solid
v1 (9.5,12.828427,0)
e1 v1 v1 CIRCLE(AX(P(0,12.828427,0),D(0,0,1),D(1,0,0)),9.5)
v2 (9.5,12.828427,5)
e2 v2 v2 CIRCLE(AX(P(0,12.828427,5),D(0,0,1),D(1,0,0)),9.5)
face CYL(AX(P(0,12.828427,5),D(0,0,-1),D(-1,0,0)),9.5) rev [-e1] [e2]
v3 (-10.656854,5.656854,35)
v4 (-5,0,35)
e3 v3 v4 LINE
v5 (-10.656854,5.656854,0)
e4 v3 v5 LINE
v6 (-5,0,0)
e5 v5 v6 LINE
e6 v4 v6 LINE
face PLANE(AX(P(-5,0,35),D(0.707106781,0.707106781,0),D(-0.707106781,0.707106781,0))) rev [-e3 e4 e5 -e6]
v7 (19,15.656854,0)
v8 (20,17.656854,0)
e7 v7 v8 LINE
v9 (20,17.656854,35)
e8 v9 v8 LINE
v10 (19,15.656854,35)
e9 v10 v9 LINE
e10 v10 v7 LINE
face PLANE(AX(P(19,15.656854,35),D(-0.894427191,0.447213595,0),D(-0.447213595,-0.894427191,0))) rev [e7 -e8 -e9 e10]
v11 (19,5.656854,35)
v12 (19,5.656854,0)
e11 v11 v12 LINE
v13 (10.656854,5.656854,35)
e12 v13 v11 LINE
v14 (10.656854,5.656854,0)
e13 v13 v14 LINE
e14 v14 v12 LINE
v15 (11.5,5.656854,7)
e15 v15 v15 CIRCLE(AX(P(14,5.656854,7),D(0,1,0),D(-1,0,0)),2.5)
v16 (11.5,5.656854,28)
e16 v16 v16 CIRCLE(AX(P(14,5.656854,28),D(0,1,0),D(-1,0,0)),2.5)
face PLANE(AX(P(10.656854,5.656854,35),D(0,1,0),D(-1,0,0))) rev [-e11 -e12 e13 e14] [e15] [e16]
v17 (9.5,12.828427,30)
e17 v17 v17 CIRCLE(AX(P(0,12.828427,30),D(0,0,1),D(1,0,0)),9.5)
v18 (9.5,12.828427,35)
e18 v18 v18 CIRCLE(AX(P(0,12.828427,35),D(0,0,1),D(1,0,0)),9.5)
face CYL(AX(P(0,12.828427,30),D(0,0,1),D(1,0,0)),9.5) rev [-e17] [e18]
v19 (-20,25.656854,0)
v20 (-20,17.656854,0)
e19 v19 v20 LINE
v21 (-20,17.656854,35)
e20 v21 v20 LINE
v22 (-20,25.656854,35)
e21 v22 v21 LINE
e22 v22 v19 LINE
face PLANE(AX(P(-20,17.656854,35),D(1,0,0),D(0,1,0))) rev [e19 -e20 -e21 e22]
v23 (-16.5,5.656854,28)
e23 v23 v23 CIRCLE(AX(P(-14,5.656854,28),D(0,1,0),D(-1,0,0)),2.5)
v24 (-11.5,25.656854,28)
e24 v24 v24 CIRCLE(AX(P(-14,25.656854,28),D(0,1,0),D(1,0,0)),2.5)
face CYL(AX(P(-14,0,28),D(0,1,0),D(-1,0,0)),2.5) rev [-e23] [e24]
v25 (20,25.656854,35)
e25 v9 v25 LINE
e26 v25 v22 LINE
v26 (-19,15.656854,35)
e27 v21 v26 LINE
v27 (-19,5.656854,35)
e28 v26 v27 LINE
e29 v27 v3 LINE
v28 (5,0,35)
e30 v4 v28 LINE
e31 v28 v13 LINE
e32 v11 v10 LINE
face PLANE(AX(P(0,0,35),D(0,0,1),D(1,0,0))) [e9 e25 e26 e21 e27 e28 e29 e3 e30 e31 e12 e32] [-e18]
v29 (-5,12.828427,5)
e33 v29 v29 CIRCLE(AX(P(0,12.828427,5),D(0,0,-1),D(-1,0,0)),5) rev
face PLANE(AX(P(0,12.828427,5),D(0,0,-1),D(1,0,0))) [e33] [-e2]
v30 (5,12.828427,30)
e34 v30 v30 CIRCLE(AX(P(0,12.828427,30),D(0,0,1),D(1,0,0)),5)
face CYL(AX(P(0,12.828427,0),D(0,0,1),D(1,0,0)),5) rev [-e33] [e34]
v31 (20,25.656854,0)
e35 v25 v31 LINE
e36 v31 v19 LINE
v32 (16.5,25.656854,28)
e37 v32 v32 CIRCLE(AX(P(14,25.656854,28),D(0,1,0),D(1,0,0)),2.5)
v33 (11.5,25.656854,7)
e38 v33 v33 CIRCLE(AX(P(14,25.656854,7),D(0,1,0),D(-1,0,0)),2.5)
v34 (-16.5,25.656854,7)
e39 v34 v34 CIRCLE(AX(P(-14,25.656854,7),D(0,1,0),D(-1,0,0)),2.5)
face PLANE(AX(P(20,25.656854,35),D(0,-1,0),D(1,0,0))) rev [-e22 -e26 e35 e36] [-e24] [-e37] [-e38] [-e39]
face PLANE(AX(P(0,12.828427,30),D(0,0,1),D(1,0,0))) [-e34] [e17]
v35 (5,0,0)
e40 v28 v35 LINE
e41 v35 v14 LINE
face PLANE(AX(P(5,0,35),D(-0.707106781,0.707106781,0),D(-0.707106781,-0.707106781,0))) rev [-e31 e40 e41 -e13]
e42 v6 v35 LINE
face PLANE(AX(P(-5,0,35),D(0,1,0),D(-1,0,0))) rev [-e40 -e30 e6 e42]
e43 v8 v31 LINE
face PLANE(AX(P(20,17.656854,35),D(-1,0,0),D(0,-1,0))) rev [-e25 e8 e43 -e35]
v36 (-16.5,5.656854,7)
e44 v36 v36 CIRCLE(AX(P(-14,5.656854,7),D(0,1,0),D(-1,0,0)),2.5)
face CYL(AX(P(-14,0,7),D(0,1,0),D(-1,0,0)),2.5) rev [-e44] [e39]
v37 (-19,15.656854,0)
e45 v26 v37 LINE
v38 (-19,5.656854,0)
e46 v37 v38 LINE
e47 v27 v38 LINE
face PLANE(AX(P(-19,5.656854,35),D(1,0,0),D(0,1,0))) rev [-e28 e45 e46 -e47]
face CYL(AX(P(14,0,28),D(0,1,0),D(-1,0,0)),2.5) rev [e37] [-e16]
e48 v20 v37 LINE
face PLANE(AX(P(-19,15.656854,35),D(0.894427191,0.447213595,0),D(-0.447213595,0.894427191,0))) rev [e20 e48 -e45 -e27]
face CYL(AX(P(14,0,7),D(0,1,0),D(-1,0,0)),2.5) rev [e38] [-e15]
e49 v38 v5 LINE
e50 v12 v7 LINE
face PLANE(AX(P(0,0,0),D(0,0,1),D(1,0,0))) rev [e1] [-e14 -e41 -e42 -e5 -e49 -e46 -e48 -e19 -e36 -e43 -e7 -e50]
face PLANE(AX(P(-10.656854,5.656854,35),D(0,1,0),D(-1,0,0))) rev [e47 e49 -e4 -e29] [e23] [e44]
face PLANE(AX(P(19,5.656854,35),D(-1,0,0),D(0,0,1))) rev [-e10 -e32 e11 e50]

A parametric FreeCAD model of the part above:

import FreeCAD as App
import Part
import Sketcher
from FreeCAD import Vector
Q = App.Units.Quantity


def add_polygon(sketch, points):
    """Adds a closed chain of lines whose ends are joined by coincident constraints."""
    first, n = sketch.GeometryCount, len(points)
    for a, b in zip(points, points[1:] + points[:1]):
        sketch.addGeometry(Part.LineSegment(App.Vector(*a, 0), App.Vector(*b, 0)), False)
    for i in range(n):
        sketch.addConstraint(Sketcher.Constraint("Coincident", first + i, 2, first + (i + 1) % n, 1))

doc = App.newDocument("Part")
body = doc.addObject("PartDesign::Body", "Body")

# Sketch on XY plane
sketch1 = body.newObject("Sketcher::SketchObject", "Sketch")
sketch1.AttachmentSupport = (doc.getObject("XY_Plane"), [""])
sketch1.MapMode = "FlatFace"
add_polygon(sketch1, [(-5, 0), (5, 0), (10.7, 5.7), (19, 5.7), (19, 15.7), (20, 17.7), (20, 25.7), (-20, 25.7), (-20, 17.7), (-19, 15.7), (-19, 5.7), (-10.7, 5.7)])  # lines 0-11
sketch1.addConstraint(Sketcher.Constraint("Horizontal", 0))
sketch1.addConstraint(Sketcher.Constraint("Horizontal", 2))
sketch1.addConstraint(Sketcher.Constraint("Vertical", 3))
sketch1.addConstraint(Sketcher.Constraint("Vertical", 5))
sketch1.addConstraint(Sketcher.Constraint("Horizontal", 6))
sketch1.addConstraint(Sketcher.Constraint("Vertical", 7))
sketch1.addConstraint(Sketcher.Constraint("Vertical", 9))
sketch1.addConstraint(Sketcher.Constraint("Horizontal", 10))
sketch1.addConstraint(Sketcher.Constraint("Symmetric", 0, 2, 11, 2, -1, 1))
sketch1.addConstraint(Sketcher.Constraint("Symmetric", 4, 2, 7, 2, -2))
sketch1.addConstraint(Sketcher.Constraint("Symmetric", 3, 2, 8, 2, -2))
sketch1.addConstraint(Sketcher.Constraint("Symmetric", 1, 2, 10, 2, -2))
sketch1.addConstraint(Sketcher.Constraint("Perpendicular", 1, 11))
sketch1.addConstraint(Sketcher.Constraint("Equal", 0, 3))
sketch1.addConstraint(Sketcher.Constraint("DistanceX", 0, 1, 0, 2, Q("10 mm")))
sketch1.addConstraint(Sketcher.Constraint("DistanceX", 6, 2, 6, 1, Q("40 mm")))
sketch1.addConstraint(Sketcher.Constraint("DistanceY", 5, 1, 5, 2, Q("8 mm")))
sketch1.addConstraint(Sketcher.Constraint("Distance", 1, Q("8 mm")))
sketch1.addConstraint(Sketcher.Constraint("DistanceX", -1, 1, 2, 2, Q("19 mm")))
sketch1.addConstraint(Sketcher.Constraint("DistanceY", 3, 2, 4, 2, Q("2 mm")))
pad1 = body.newObject("PartDesign::Pad", "Pad")
pad1.Profile = sketch1
pad1.Length = 35

# Sketch on XY plane
sketch2 = body.newObject("Sketcher::SketchObject", "Sketch001")
sketch2.AttachmentSupport = (doc.getObject("XY_Plane"), [""])
sketch2.MapMode = "FlatFace"
sketch2.AttachmentOffset = App.Placement(Vector(0, 0, 35), App.Rotation())
sketch2.addGeometry(Part.Circle(Vector(0, 13, 0), Vector(0, 0, 1), 10), False)
sketch2.addConstraint(Sketcher.Constraint("PointOnObject", 0, 3, -2))
sketch2.addConstraint(Sketcher.Constraint("Diameter", 0, Q("19 mm")))
sketch2.addConstraint(Sketcher.Constraint("DistanceY", -1, 1, 0, 3, Q("12.828427 mm")))
pocket1 = body.newObject("PartDesign::Pocket", "Pocket")
pocket1.Profile = sketch2
pocket1.Length = 5

# Sketch on XY plane
sketch3 = body.newObject("Sketcher::SketchObject", "Sketch002")
sketch3.AttachmentSupport = (doc.getObject("XY_Plane"), [""])
sketch3.MapMode = "FlatFace"
sketch3.AttachmentOffset = App.Placement(Vector(0, 0, 30), App.Rotation())
sketch3.addGeometry(Part.Circle(Vector(0, 13, 0), Vector(0, 0, 1), 5), False)
sketch3.addConstraint(Sketcher.Constraint("PointOnObject", 0, 3, -2))
sketch3.addConstraint(Sketcher.Constraint("Diameter", 0, Q("10 mm")))
sketch3.addConstraint(Sketcher.Constraint("DistanceY", -1, 1, 0, 3, Q("12.828427 mm")))
pocket2 = body.newObject("PartDesign::Pocket", "Pocket001")
pocket2.Profile = sketch3
pocket2.Type = "ThroughAll"
doc.recompute()

datumplane = body.newObject("PartDesign::Plane", "DatumPlane")
datumplane.AttachmentSupport = (doc.getObject("XY_Plane"), [""])
datumplane.MapMode = "FlatFace"
datumplane.AttachmentOffset = App.Placement(Vector(0, 0, 17.5), App.Rotation())
mirrored = body.newObject("PartDesign::Mirrored", "Mirrored")
mirrored.Originals = [pocket1]
mirrored.MirrorPlane = (datumplane, [""])
body.Tip = mirrored

# Sketch on XZ plane
sketch4 = body.newObject("Sketcher::SketchObject", "Sketch003")
sketch4.AttachmentSupport = (doc.getObject("XZ_Plane"), [""])
sketch4.MapMode = "FlatFace"
sketch4.AttachmentOffset = App.Placement(Vector(0, 0, -25.656854), App.Rotation())
sketch4.addGeometry(Part.Circle(Vector(-14, 7, 0), Vector(0, 0, 1), 2.5), False)
sketch4.addGeometry(Part.Circle(Vector(14, 7, 0), Vector(0, 0, 1), 2.5), False)
sketch4.addGeometry(Part.Circle(Vector(14, 28, 0), Vector(0, 0, 1), 2.5), False)
sketch4.addGeometry(Part.Circle(Vector(-14, 28, 0), Vector(0, 0, 1), 2.5), False)
sketch4.addConstraint(Sketcher.Constraint("Equal", 0, 1))
sketch4.addConstraint(Sketcher.Constraint("Equal", 1, 2))
sketch4.addConstraint(Sketcher.Constraint("Equal", 2, 3))
sketch4.addConstraint(Sketcher.Constraint("Symmetric", 0, 3, 1, 3, -2))
sketch4.addConstraint(Sketcher.Constraint("Symmetric", 2, 3, 3, 3, -2))
sketch4.addConstraint(Sketcher.Constraint("Vertical", 1, 3, 2, 3))
sketch4.addConstraint(Sketcher.Constraint("Diameter", 0, Q("5 mm")))
sketch4.addConstraint(Sketcher.Constraint("DistanceX", 0, 3, -1, 1, Q("14 mm")))
sketch4.addConstraint(Sketcher.Constraint("DistanceY", -1, 1, 0, 3, Q("7 mm")))
sketch4.addConstraint(Sketcher.Constraint("DistanceY", -1, 1, 2, 3, Q("28 mm")))
pocket3 = body.newObject("PartDesign::Pocket", "Pocket002")
pocket3.Profile = sketch4
pocket3.Type = "ThroughAll"
pocket3.Reversed = True

doc.recompute()
